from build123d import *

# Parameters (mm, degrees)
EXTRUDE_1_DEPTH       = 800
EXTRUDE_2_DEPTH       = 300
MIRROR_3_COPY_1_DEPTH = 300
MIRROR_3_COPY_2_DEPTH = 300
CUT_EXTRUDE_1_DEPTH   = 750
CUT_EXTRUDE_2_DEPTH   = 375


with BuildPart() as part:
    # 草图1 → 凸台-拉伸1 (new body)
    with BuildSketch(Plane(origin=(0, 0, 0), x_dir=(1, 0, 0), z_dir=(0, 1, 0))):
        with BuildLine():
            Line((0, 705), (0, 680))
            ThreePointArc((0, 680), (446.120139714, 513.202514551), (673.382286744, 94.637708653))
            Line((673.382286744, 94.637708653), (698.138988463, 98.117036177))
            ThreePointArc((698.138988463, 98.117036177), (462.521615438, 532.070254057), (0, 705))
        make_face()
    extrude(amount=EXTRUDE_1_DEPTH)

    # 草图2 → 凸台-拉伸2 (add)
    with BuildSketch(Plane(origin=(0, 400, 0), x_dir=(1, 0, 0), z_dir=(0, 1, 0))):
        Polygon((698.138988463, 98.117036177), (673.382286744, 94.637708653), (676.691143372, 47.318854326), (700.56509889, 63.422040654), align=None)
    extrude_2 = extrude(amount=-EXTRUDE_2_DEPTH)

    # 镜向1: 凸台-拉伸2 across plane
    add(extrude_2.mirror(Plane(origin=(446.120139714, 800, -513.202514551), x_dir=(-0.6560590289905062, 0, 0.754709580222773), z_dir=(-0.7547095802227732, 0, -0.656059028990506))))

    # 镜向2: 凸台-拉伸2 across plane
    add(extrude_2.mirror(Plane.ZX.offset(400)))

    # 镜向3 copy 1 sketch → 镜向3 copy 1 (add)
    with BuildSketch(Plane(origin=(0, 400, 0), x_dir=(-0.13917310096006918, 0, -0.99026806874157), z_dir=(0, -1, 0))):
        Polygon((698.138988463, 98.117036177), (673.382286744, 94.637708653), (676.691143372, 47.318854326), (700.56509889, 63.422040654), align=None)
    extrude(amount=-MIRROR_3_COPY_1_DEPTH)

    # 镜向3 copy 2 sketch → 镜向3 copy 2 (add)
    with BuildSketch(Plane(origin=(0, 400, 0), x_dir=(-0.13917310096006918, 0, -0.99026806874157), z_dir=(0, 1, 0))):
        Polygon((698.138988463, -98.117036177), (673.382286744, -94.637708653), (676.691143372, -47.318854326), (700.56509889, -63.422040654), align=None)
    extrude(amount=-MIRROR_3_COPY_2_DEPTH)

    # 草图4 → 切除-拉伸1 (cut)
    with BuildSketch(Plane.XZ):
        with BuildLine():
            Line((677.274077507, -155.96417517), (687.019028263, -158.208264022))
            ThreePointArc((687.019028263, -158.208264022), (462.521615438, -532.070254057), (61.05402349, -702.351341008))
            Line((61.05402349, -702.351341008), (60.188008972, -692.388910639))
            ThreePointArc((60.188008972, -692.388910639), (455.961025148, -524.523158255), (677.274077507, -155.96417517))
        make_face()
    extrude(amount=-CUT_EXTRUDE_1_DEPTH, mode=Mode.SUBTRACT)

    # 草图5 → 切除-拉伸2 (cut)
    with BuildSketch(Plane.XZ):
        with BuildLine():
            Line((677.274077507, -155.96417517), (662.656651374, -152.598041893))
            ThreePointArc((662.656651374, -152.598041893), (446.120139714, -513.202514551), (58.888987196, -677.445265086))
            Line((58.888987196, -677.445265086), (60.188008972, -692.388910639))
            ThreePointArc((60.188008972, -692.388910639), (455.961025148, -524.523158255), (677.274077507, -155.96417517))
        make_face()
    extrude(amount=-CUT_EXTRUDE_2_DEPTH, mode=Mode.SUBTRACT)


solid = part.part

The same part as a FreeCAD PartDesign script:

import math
import FreeCAD as App
import Part
import Sketcher
from FreeCAD import Vector
Q = App.Units.Quantity


def add_polygon(sketch, points):
    """Adds a closed chain of lines whose ends are joined by coincident constraints."""
    first, n = sketch.GeometryCount, len(points)
    for a, b in zip(points, points[1:] + points[:1]):
        sketch.addGeometry(Part.LineSegment(App.Vector(*a, 0), App.Vector(*b, 0)), False)
    for i in range(n):
        sketch.addConstraint(Sketcher.Constraint("Coincident", first + i, 2, first + (i + 1) % n, 1))

doc = App.newDocument("Part")
params = doc.addObject("Spreadsheet::Sheet", "Params")
for row, (alias, value) in enumerate([
    ("sketch1_radius", "680 mm"),
    ("sketch1_radius2", "705 mm"),
    ("pad1_length", "800 mm"),
    ("sketch2_length", "25 mm"),
    ("pad2_length", "300 mm"),
    ("sketch3_height", "25 mm"),
    ("pad3_length", "300 mm"),
    ("sketch4_height", "25 mm"),
    ("pad4_length", "300 mm"),
    ("sketch5_radius", "695 mm"),
    ("sketch5_radius2", "705 mm"),
    ("pocket1_length", "750 mm"),
    ("sketch6_radius", "680 mm"),
    ("sketch6_radius2", "695 mm"),
    ("pocket2_length", "375 mm"),
], start=1):
    params.set(f"A{row}", alias)
    params.set(f"B{row}", "=" + value)
    params.setAlias(f"B{row}", alias)

body = doc.addObject("PartDesign::Body", "Body")

# Sketch on XZ plane
sketch1 = doc.addObject("Sketcher::SketchObject", "Sketch")
body.addObject(sketch1)
sketch1.AttachmentSupport = (doc.XZ_Plane, [""])
sketch1.MapMode = "FlatFace"
sketch1.addGeometry([
    Part.LineSegment(Vector(0, -705, 0), Vector(0, -680, 0)),
    Part.ArcOfCircle(Part.Circle(Vector(0, 0, 0), Vector(0, 0, 1), 680), math.radians(-90), math.radians(-8)),
    Part.LineSegment(Vector(673.382287, -94.637709, 0), Vector(698.138988, -98.117036, 0)),
    Part.ArcOfCircle(Part.Circle(Vector(0, 0, 0), Vector(0, 0, 1), 705), math.radians(-90), math.radians(-8)),
], False)
sketch1.addConstraint([
    Sketcher.Constraint("Coincident", 0, 2, 1, 1),
    Sketcher.Constraint("Coincident", 1, 2, 2, 1),
    Sketcher.Constraint("Coincident", 2, 2, 3, 2),
    Sketcher.Constraint("Coincident", 3, 1, 0, 1),
    Sketcher.Constraint("Vertical", 0),
    Sketcher.Constraint("Coincident", 1, 3, -1, 1),
    Sketcher.Constraint("Coincident", 3, 3, -1, 1),
    Sketcher.Constraint("PointOnObject", 0, 2, -2),
    Sketcher.Constraint("Radius", 1, Q("680 mm")),
    Sketcher.Constraint("Radius", 3, Q("705 mm")),
    Sketcher.Constraint("Angle", 2, Q("-8 deg")),
    Sketcher.Constraint("DistanceX", -1, 1, 2, 2, Q("698.138988 mm")),
])
sketch1.setExpression("Constraints[8]", "Params.sketch1_radius")
sketch1.setExpression("Constraints[9]", "Params.sketch1_radius2")
pad1 = doc.addObject("PartDesign::Pad", "Pad")
body.addObject(pad1)
pad1.Profile = sketch1
pad1.setExpression("Length", "Params.pad1_length")
pad1.Reversed = True

# Sketch on XZ plane
sketch2 = doc.addObject("Sketcher::SketchObject", "Sketch001")
body.addObject(sketch2)
sketch2.AttachmentSupport = (doc.XZ_Plane, [""])
sketch2.MapMode = "FlatFace"
sketch2.AttachmentOffset = App.Placement(Vector(0, 0, -400), App.Rotation())
add_polygon(sketch2, [(698.138988, -98.117036), (673.382287, -94.637709), (676.691143, -47.318854), (700.565099, -63.422041)])  # lines 0-3
sketch2.addConstraint([
    Sketcher.Constraint("Parallel", 1, 3),
    Sketcher.Constraint("Angle", 0, Q("172 deg")),
    Sketcher.Constraint("Angle", 1, Q("86 deg")),
    Sketcher.Constraint("Angle", 2, Q("-34 deg")),
    Sketcher.Constraint("Distance", 0, Q("25 mm")),
    Sketcher.Constraint("DistanceX", -1, 1, 2, 2, Q("700.565099 mm")),
    Sketcher.Constraint("DistanceY", 0, 2, -1, 1, Q("94.637709 mm")),
    Sketcher.Constraint("DistanceY", 2, 2, -1, 1, Q("63.422041 mm")),
])
sketch2.setExpression("Constraints[8]", "Params.sketch2_length")
pad2 = doc.addObject("PartDesign::Pad", "Pad001")
body.addObject(pad2)
pad2.Profile = sketch2
pad2.setExpression("Length", "Params.pad2_length")
doc.recompute()

datumplane = doc.addObject("PartDesign::Plane", "DatumPlane")
body.addObject(datumplane)
datumplane.Placement = App.Placement(Vector(0, 0, 0), App.Rotation(Vector(0.656059029, 0, -0.75470958), Vector(0, -1, 0), Vector(-0.75470958, 0, -0.656059029), "ZXY"))
mirrored = doc.addObject("PartDesign::Mirrored", "Mirrored")
body.addObject(mirrored)
mirrored.Originals = [pad2]
mirrored.MirrorPlane = (datumplane, [""])
body.Tip = mirrored
doc.recompute()

datumplane2 = doc.addObject("PartDesign::Plane", "DatumPlane001")
body.addObject(datumplane2)
datumplane2.AttachmentSupport = (doc.XZ_Plane, [""])
datumplane2.MapMode = "FlatFace"
datumplane2.AttachmentOffset = App.Placement(Vector(0, 0, -400), App.Rotation())
mirrored2 = doc.addObject("PartDesign::Mirrored", "Mirrored001")
body.addObject(mirrored2)
mirrored2.Originals = [pad2]
mirrored2.MirrorPlane = (datumplane2, [""])
body.Tip = mirrored2

# Sketch on XZ plane
sketch3 = doc.addObject("Sketcher::SketchObject", "Sketch002")
body.addObject(sketch3)
sketch3.AttachmentSupport = (doc.XZ_Plane, [""])
sketch3.MapMode = "FlatFace"
sketch3.AttachmentOffset = App.Placement(Vector(0, 0, -400), App.Rotation())
add_polygon(sketch3, [(0, -705), (0, -680), (-47.318854, -676.691144), (-34.694996, -702.57389)])  # lines 0-3
sketch3.addConstraint([
    Sketcher.Constraint("Vertical", 0),
    Sketcher.Constraint("PointOnObject", 0, 2, -2),
    Sketcher.Constraint("Parallel", 1, 3),
    Sketcher.Constraint("DistanceY", 0, 1, 0, 2, Q("25 mm")),
    Sketcher.Constraint("Angle", 1, Q("176 deg")),
    Sketcher.Constraint("Angle", 2, Q("-64 deg")),
    Sketcher.Constraint("DistanceY", 0, 2, -1, 1, Q("680 mm")),
    Sketcher.Constraint("DistanceY", 2, 2, -1, 1, Q("702.57389 mm")),
])
sketch3.setExpression("Constraints[7]", "Params.sketch3_height")
pad3 = doc.addObject("PartDesign::Pad", "Pad002")
body.addObject(pad3)
pad3.Profile = sketch3
pad3.setExpression("Length", "Params.pad3_length")
pad3.Reversed = True

# Sketch on XZ plane
sketch4 = doc.addObject("Sketcher::SketchObject", "Sketch003")
body.addObject(sketch4)
sketch4.AttachmentSupport = (doc.XZ_Plane, [""])
sketch4.MapMode = "FlatFace"
sketch4.AttachmentOffset = App.Placement(Vector(0, 0, -400), App.Rotation())
add_polygon(sketch4, [(0, -680), (0, -705), (-34.694996, -702.57389), (-47.318854, -676.691144)])  # lines 0-3
sketch4.addConstraint([
    Sketcher.Constraint("Vertical", 0),
    Sketcher.Constraint("PointOnObject", 0, 2, -2),
    Sketcher.Constraint("Parallel", 1, 3),
    Sketcher.Constraint("DistanceY", 0, 2, 0, 1, Q("25 mm")),
    Sketcher.Constraint("Angle", 1, Q("176 deg")),
    Sketcher.Constraint("Angle", 2, Q("116 deg")),
    Sketcher.Constraint("DistanceY", 0, 2, -1, 1, Q("705 mm")),
    Sketcher.Constraint("DistanceY", 1, 2, -1, 1, Q("702.57389 mm")),
])
sketch4.setExpression("Constraints[7]", "Params.sketch4_height")
pad4 = doc.addObject("PartDesign::Pad", "Pad003")
body.addObject(pad4)
pad4.Profile = sketch4
pad4.setExpression("Length", "Params.pad4_length")

# Sketch on XZ plane
sketch5 = doc.addObject("Sketcher::SketchObject", "Sketch004")
body.addObject(sketch5)
sketch5.AttachmentSupport = (doc.XZ_Plane, [""])
sketch5.MapMode = "FlatFace"
sketch5.addGeometry([
    Part.LineSegment(Vector(687.019028, -158.208264, 0), Vector(677.274078, -155.964175, 0)),
    Part.ArcOfCircle(Part.Circle(Vector(0, 0, 0), Vector(0, 0, 1), 695), math.radians(-85.031879), math.radians(-12.968121)),
    Part.LineSegment(Vector(60.188009, -692.388911, 0), Vector(61.054023, -702.351341, 0)),
    Part.ArcOfCircle(Part.Circle(Vector(0, 0, 0), Vector(0, 0, 1), 705), math.radians(-85.031879), math.radians(-12.968121)),
], False)
sketch5.addConstraint([
    Sketcher.Constraint("Coincident", 0, 2, 1, 2),
    Sketcher.Constraint("Coincident", 1, 1, 2, 1),
    Sketcher.Constraint("Coincident", 2, 2, 3, 1),
    Sketcher.Constraint("Coincident", 3, 2, 0, 1),
    Sketcher.Constraint("Coincident", 1, 3, -1, 1),
    Sketcher.Constraint("Coincident", 3, 3, -1, 1),
    Sketcher.Constraint("Radius", 1, Q("695 mm")),
    Sketcher.Constraint("Radius", 3, Q("705 mm")),
    Sketcher.Constraint("DistanceY", 2, 2, -1, 1, Q("702.351341 mm")),
    Sketcher.Constraint("DistanceX", 0, 2, 3, 2, Q("9.744951 mm")),
    Sketcher.Constraint("DistanceX", -1, 1, 0, 2, Q("677.274078 mm")),
    Sketcher.Constraint("Angle", 2, Q("-85.031879 deg")),
])
sketch5.setExpression("Constraints[6]", "Params.sketch5_radius")
sketch5.setExpression("Constraints[7]", "Params.sketch5_radius2")
pocket1 = doc.addObject("PartDesign::Pocket", "Pocket")
body.addObject(pocket1)
pocket1.Profile = sketch5
pocket1.setExpression("Length", "Params.pocket1_length")

# Sketch on XZ plane
sketch6 = doc.addObject("Sketcher::SketchObject", "Sketch005")
body.addObject(sketch6)
sketch6.AttachmentSupport = (doc.XZ_Plane, [""])
sketch6.MapMode = "FlatFace"
sketch6.addGeometry([
    Part.LineSegment(Vector(677.274078, -155.964175, 0), Vector(662.656651, -152.598042, 0)),
    Part.ArcOfCircle(Part.Circle(Vector(0, 0, 0), Vector(0, 0, 1), 680), math.radians(-85.031879), math.radians(-12.968121)),
    Part.LineSegment(Vector(58.888987, -677.445265, 0), Vector(60.188009, -692.388911, 0)),
    Part.ArcOfCircle(Part.Circle(Vector(0, 0, 0), Vector(0, 0, 1), 695), math.radians(-85.031879), math.radians(-12.968121)),
], False)
sketch6.addConstraint([
    Sketcher.Constraint("Coincident", 0, 2, 1, 2),
    Sketcher.Constraint("Coincident", 1, 1, 2, 1),
    Sketcher.Constraint("Coincident", 2, 2, 3, 1),
    Sketcher.Constraint("Coincident", 3, 2, 0, 1),
    Sketcher.Constraint("Coincident", 1, 3, -1, 1),
    Sketcher.Constraint("Coincident", 3, 3, -1, 1),
    Sketcher.Constraint("Radius", 1, Q("680 mm")),
    Sketcher.Constraint("Radius", 3, Q("695 mm")),
    Sketcher.Constraint("DistanceX", -1, 1, 0, 2, Q("662.656651 mm")),
    Sketcher.Constraint("DistanceX", -1, 1, 2, 2, Q("60.188009 mm")),
    Sketcher.Constraint("Angle", 0, Q("167.031879 deg")),
    Sketcher.Constraint("Angle", 2, Q("-85.031879 deg")),
])
sketch6.setExpression("Constraints[6]", "Params.sketch6_radius")
sketch6.setExpression("Constraints[7]", "Params.sketch6_radius2")
pocket2 = doc.addObject("PartDesign::Pocket", "Pocket001")
body.addObject(pocket2)
pocket2.Profile = sketch6
pocket2.setExpression("Length", "Params.pocket2_length")

doc.recompute()
